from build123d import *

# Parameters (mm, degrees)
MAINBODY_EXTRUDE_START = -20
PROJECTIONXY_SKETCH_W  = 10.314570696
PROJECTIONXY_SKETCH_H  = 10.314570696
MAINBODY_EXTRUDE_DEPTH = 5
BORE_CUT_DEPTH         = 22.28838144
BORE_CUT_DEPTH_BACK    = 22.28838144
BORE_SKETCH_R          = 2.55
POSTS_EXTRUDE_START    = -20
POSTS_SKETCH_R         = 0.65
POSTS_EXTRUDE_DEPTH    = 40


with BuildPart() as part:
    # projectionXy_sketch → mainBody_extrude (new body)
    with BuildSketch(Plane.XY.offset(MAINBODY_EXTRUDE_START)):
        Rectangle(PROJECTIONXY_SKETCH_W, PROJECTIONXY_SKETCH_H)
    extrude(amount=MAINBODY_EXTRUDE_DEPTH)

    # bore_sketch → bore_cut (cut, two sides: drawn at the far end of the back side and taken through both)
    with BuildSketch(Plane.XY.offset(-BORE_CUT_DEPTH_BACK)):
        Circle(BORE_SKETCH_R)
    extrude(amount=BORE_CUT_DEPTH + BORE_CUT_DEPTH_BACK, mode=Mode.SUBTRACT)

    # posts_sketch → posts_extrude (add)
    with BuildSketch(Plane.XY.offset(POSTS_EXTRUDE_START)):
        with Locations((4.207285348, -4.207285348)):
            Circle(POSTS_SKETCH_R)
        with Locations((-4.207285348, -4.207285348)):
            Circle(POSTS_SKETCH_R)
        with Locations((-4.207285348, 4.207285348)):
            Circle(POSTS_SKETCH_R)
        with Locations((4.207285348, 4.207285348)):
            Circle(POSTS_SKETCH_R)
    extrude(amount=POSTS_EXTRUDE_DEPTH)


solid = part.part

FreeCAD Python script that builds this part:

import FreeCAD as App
import Part
import Sketcher
from FreeCAD import Vector


def add_polygon(sketch, points):
    """Adds a closed chain of lines whose ends are joined by coincident constraints."""
    first, n = sketch.GeometryCount, len(points)
    for a, b in zip(points, points[1:] + points[:1]):
        sketch.addGeometry(Part.LineSegment(App.Vector(*a, 0), App.Vector(*b, 0)), False)
    for i in range(n):
        sketch.addConstraint(Sketcher.Constraint("Coincident", first + i, 2, first + (i + 1) % n, 1))

doc = App.newDocument("Part")
params = doc.addObject("Spreadsheet::Sheet", "Params")
for row, (alias, value) in enumerate([
    ("pad1_length", "5 mm"),
    ("sketch2_diameter", "5.1 mm"),
    ("sketch3_diameter", "1.3 mm"),
    ("pad2_length", "40 mm"),
], start=1):
    params.set(f"A{row}", alias)
    params.set(f"B{row}", "=" + value)
    params.setAlias(f"B{row}", alias)

body = doc.addObject("PartDesign::Body", "Body")

sketch1 = body.newObject("Sketcher::SketchObject", "Sketch")
sketch1.AttachmentSupport = (doc.getObject("XY_Plane"), [""])
sketch1.MapMode = "FlatFace"
sketch1.AttachmentOffset = App.Placement(Vector(0, 0, -20), App.Rotation())
add_polygon(sketch1, [(-5, 5), (-5, -5), (5, -5), (5, 5)])
sketch1.addConstraint([
    Sketcher.Constraint("Vertical", 0),
    Sketcher.Constraint("Horizontal", 1),
    Sketcher.Constraint("Vertical", 2),
    Sketcher.Constraint("Horizontal", 3),
    Sketcher.Constraint("Symmetric", 0, 2, 2, 2, -1, 1),
    Sketcher.Constraint("Equal", 3, 0),
    Sketcher.Constraint("DistanceX", 1, 1, 1, 2, 10.314571),
])
pad1 = body.newObject("PartDesign::Pad", "Pad")
pad1.Profile = sketch1
pad1.setExpression("Length", "Params.pad1_length")

sketch2 = body.newObject("Sketcher::SketchObject", "Sketch001")
sketch2.AttachmentSupport = (doc.getObject("XY_Plane"), [""])
sketch2.MapMode = "FlatFace"
sketch2.addGeometry(Part.Circle(Vector(0, 0, 0), Vector(0, 0, 1), 2.5), False)
sketch2.addConstraint([
    Sketcher.Constraint("Coincident", 0, 3, -1, 1),
    Sketcher.Constraint("Diameter", 0, 5.1),
])
sketch2.setExpression("Constraints[1]", "Params.sketch2_diameter")
pocket1 = body.newObject("PartDesign::Pocket", "Pocket")
pocket1.Profile = sketch2
pocket1.Type = "ThroughAll"
pocket1.Midplane = True

sketch3 = body.newObject("Sketcher::SketchObject", "Sketch002")
sketch3.AttachmentSupport = (doc.getObject("XY_Plane"), [""])
sketch3.MapMode = "FlatFace"
sketch3.AttachmentOffset = App.Placement(Vector(0, 0, -20), App.Rotation())
sketch3.addGeometry([
    Part.Circle(Vector(4.2, -4.2, 0), Vector(0, 0, 1), 0.7),
    Part.Circle(Vector(-4.2, -4.2, 0), Vector(0, 0, 1), 0.7),
    Part.Circle(Vector(-4.2, 4.2, 0), Vector(0, 0, 1), 0.7),
    Part.Circle(Vector(4.2, 4.2, 0), Vector(0, 0, 1), 0.7),
], False)
sketch3.addConstraint([
    Sketcher.Constraint("Equal", 0, 1),
    Sketcher.Constraint("Equal", 1, 2),
    Sketcher.Constraint("Equal", 2, 3),
    Sketcher.Constraint("Symmetric", 0, 3, 2, 3, -1, 1),
    Sketcher.Constraint("Symmetric", 1, 3, 3, 3, -1, 1),
    Sketcher.Constraint("Symmetric", 0, 3, 1, 3, -2),
    Sketcher.Constraint("Diameter", 0, 1.3),
    Sketcher.Constraint("DistanceX", 1, 3, 0, 3, 8.414571),
    Sketcher.Constraint("DistanceY", 1, 3, 2, 3, 8.414571),
])
sketch3.setExpression("Constraints[6]", "Params.sketch3_diameter")
pad2 = body.newObject("PartDesign::Pad", "Pad001")
pad2.Profile = sketch3
pad2.setExpression("Length", "Params.pad2_length")

doc.recompute()
